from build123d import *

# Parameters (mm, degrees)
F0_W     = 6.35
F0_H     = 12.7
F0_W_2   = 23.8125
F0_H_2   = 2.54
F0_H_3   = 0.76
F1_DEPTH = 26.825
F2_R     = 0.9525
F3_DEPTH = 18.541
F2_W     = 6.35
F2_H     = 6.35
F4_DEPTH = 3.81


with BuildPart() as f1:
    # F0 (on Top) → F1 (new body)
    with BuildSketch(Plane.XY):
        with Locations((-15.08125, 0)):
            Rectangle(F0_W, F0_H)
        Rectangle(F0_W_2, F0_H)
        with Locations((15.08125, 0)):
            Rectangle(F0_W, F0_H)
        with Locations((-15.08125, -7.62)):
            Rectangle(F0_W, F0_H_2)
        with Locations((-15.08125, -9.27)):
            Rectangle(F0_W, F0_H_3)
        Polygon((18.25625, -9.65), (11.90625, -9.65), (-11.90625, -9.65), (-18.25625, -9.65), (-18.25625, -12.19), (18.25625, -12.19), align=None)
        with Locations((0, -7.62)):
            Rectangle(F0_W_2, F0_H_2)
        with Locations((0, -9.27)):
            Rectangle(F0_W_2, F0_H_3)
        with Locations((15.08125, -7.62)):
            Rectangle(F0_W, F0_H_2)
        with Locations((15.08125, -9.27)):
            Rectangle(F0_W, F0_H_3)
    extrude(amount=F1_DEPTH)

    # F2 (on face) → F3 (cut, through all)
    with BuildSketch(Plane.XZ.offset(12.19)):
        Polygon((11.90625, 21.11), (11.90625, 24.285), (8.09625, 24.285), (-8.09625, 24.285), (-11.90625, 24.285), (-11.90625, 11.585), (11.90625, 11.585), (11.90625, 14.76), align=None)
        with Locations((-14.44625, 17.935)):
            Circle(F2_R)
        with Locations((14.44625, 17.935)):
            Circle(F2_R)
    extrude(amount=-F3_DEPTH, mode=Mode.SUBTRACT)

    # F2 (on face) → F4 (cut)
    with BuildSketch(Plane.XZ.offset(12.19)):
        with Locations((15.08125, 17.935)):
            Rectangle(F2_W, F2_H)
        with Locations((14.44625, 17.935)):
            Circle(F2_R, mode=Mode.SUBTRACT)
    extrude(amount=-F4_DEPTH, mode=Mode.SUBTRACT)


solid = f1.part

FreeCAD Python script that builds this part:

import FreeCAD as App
import Part
import Sketcher
from FreeCAD import Vector
Q = App.Units.Quantity

doc = App.newDocument("Part")
body = doc.addObject("PartDesign::Body", "Body")

# Sketch on XY plane
sketch1 = body.newObject("Sketcher::SketchObject", "Sketch")
sketch1.AttachmentSupport = (doc.getObject("XY_Plane"), [""])
sketch1.MapMode = "FlatFace"
sketch1.addGeometry([
    Part.LineSegment(Vector(-18, 6, 0), Vector(-18, -12, 0)),
    Part.LineSegment(Vector(-18, -12, 0), Vector(18, -12, 0)),
    Part.LineSegment(Vector(18, -12, 0), Vector(18, 6, 0)),
    Part.LineSegment(Vector(18, 6, 0), Vector(-18, 6, 0)),
], False)
sketch1.addConstraint([
    Sketcher.Constraint("Coincident", 0, 2, 1, 1),
    Sketcher.Constraint("Coincident", 1, 2, 2, 1),
    Sketcher.Constraint("Coincident", 2, 2, 3, 1),
    Sketcher.Constraint("Coincident", 3, 2, 0, 1),
    Sketcher.Constraint("Vertical", 0),
    Sketcher.Constraint("Horizontal", 1),
    Sketcher.Constraint("Vertical", 2),
    Sketcher.Constraint("Horizontal", 3),
    Sketcher.Constraint("DistanceX", 1, 1, 1, 2, Q("1.4375 in")),
    Sketcher.Constraint("DistanceY", -1, 1, 2, 2, Q("0.25 in")),
    Sketcher.Constraint("DistanceX", 0, 2, -1, 1, Q("0.71875 in")),
    Sketcher.Constraint("DistanceY", 0, 2, 0, 1, Q("18.54 mm")),
])
pad1 = body.newObject("PartDesign::Pad", "Pad")
pad1.Profile = sketch1
pad1.Length = 26.825

# Sketch on XZ plane
sketch2 = body.newObject("Sketcher::SketchObject", "Sketch001")
sketch2.AttachmentSupport = (doc.getObject("XZ_Plane"), [""])
sketch2.MapMode = "FlatFace"
sketch2.AttachmentOffset = App.Placement(Vector(0, 0, 12.19), App.Rotation())
sketch2.addGeometry([
    Part.LineSegment(Vector(11.9, 24.3, 0), Vector(-11.9, 24.3, 0)),  # 0
    Part.LineSegment(Vector(-11.9, 24.3, 0), Vector(-11.9, 11.6, 0)),  # 1
    Part.LineSegment(Vector(-11.9, 11.6, 0), Vector(11.9, 11.6, 0)),  # 2
    Part.LineSegment(Vector(11.9, 11.6, 0), Vector(11.9, 24.3, 0)),  # 3
    Part.Circle(Vector(-14.4, 17.9, 0), Vector(0, 0, 1), 1),  # 4
    Part.Circle(Vector(14.4, 17.9, 0), Vector(0, 0, 1), 1),  # 5
], False)
sketch2.addConstraint([
    Sketcher.Constraint("Coincident", 0, 2, 1, 1),
    Sketcher.Constraint("Coincident", 1, 2, 2, 1),
    Sketcher.Constraint("Coincident", 2, 2, 3, 1),
    Sketcher.Constraint("Coincident", 3, 2, 0, 1),
    Sketcher.Constraint("Horizontal", 0),
    Sketcher.Constraint("Vertical", 1),
    Sketcher.Constraint("Horizontal", 2),
    Sketcher.Constraint("Vertical", 3),
    Sketcher.Constraint("Equal", 4, 5),
    Sketcher.Constraint("Symmetric", 4, 3, 5, 3, -2),
    Sketcher.Constraint("Diameter", 4, Q("0.075 in")),
    Sketcher.Constraint("DistanceY", 1, 2, 1, 1, Q("0.5 in")),
    Sketcher.Constraint("DistanceX", 4, 3, 0, 2, Q("0.1 in")),
    Sketcher.Constraint("DistanceX", 2, 2, 5, 3, Q("0.1 in")),
    Sketcher.Constraint("DistanceX", 0, 2, 0, 1, Q("0.9375 in")),
    Sketcher.Constraint("DistanceY", 4, 3, 0, 2, Q("0.25 in")),
    Sketcher.Constraint("DistanceY", -1, 1, 4, 3, Q("17.935 mm")),
])
pocket1 = body.newObject("PartDesign::Pocket", "Pocket")
pocket1.Profile = sketch2
pocket1.Type = "ThroughAll"

# Sketch on XZ plane
sketch3 = body.newObject("Sketcher::SketchObject", "Sketch002")
sketch3.AttachmentSupport = (doc.getObject("XZ_Plane"), [""])
sketch3.MapMode = "FlatFace"
sketch3.AttachmentOffset = App.Placement(Vector(0, 0, 12.19), App.Rotation())
sketch3.addGeometry([
    Part.LineSegment(Vector(11.9, 21.1, 0), Vector(11.9, 14.8, 0)),  # 0
    Part.LineSegment(Vector(11.9, 14.8, 0), Vector(18.3, 14.8, 0)),  # 1
    Part.LineSegment(Vector(18.3, 14.8, 0), Vector(18.3, 21.1, 0)),  # 2
    Part.LineSegment(Vector(18.3, 21.1, 0), Vector(11.9, 21.1, 0)),  # 3
    Part.Circle(Vector(14.4, 17.9, 0), Vector(0, 0, 1), 1),  # 4
], False)
sketch3.addConstraint([
    Sketcher.Constraint("Coincident", 0, 2, 1, 1),
    Sketcher.Constraint("Coincident", 1, 2, 2, 1),
    Sketcher.Constraint("Coincident", 2, 2, 3, 1),
    Sketcher.Constraint("Coincident", 3, 2, 0, 1),
    Sketcher.Constraint("Vertical", 0),
    Sketcher.Constraint("Horizontal", 1),
    Sketcher.Constraint("Vertical", 2),
    Sketcher.Constraint("Horizontal", 3),
    Sketcher.Constraint("Equal", 3, 0),
    Sketcher.Constraint("Diameter", 4, Q("0.075 in")),
    Sketcher.Constraint("DistanceX", 1, 1, 1, 2, Q("0.25 in")),
    Sketcher.Constraint("DistanceX", 0, 2, 4, 3, Q("0.1 in")),
    Sketcher.Constraint("DistanceX", -1, 1, 0, 2, Q("0.46875 in")),
    Sketcher.Constraint("DistanceY", 0, 2, 4, 3, Q("0.125 in")),
    Sketcher.Constraint("DistanceY", -1, 1, 4, 3, Q("17.935 mm")),
])
pocket2 = body.newObject("PartDesign::Pocket", "Pocket001")
pocket2.Profile = sketch3
pocket2.Length = Q("0.15 in")

doc.recompute()
